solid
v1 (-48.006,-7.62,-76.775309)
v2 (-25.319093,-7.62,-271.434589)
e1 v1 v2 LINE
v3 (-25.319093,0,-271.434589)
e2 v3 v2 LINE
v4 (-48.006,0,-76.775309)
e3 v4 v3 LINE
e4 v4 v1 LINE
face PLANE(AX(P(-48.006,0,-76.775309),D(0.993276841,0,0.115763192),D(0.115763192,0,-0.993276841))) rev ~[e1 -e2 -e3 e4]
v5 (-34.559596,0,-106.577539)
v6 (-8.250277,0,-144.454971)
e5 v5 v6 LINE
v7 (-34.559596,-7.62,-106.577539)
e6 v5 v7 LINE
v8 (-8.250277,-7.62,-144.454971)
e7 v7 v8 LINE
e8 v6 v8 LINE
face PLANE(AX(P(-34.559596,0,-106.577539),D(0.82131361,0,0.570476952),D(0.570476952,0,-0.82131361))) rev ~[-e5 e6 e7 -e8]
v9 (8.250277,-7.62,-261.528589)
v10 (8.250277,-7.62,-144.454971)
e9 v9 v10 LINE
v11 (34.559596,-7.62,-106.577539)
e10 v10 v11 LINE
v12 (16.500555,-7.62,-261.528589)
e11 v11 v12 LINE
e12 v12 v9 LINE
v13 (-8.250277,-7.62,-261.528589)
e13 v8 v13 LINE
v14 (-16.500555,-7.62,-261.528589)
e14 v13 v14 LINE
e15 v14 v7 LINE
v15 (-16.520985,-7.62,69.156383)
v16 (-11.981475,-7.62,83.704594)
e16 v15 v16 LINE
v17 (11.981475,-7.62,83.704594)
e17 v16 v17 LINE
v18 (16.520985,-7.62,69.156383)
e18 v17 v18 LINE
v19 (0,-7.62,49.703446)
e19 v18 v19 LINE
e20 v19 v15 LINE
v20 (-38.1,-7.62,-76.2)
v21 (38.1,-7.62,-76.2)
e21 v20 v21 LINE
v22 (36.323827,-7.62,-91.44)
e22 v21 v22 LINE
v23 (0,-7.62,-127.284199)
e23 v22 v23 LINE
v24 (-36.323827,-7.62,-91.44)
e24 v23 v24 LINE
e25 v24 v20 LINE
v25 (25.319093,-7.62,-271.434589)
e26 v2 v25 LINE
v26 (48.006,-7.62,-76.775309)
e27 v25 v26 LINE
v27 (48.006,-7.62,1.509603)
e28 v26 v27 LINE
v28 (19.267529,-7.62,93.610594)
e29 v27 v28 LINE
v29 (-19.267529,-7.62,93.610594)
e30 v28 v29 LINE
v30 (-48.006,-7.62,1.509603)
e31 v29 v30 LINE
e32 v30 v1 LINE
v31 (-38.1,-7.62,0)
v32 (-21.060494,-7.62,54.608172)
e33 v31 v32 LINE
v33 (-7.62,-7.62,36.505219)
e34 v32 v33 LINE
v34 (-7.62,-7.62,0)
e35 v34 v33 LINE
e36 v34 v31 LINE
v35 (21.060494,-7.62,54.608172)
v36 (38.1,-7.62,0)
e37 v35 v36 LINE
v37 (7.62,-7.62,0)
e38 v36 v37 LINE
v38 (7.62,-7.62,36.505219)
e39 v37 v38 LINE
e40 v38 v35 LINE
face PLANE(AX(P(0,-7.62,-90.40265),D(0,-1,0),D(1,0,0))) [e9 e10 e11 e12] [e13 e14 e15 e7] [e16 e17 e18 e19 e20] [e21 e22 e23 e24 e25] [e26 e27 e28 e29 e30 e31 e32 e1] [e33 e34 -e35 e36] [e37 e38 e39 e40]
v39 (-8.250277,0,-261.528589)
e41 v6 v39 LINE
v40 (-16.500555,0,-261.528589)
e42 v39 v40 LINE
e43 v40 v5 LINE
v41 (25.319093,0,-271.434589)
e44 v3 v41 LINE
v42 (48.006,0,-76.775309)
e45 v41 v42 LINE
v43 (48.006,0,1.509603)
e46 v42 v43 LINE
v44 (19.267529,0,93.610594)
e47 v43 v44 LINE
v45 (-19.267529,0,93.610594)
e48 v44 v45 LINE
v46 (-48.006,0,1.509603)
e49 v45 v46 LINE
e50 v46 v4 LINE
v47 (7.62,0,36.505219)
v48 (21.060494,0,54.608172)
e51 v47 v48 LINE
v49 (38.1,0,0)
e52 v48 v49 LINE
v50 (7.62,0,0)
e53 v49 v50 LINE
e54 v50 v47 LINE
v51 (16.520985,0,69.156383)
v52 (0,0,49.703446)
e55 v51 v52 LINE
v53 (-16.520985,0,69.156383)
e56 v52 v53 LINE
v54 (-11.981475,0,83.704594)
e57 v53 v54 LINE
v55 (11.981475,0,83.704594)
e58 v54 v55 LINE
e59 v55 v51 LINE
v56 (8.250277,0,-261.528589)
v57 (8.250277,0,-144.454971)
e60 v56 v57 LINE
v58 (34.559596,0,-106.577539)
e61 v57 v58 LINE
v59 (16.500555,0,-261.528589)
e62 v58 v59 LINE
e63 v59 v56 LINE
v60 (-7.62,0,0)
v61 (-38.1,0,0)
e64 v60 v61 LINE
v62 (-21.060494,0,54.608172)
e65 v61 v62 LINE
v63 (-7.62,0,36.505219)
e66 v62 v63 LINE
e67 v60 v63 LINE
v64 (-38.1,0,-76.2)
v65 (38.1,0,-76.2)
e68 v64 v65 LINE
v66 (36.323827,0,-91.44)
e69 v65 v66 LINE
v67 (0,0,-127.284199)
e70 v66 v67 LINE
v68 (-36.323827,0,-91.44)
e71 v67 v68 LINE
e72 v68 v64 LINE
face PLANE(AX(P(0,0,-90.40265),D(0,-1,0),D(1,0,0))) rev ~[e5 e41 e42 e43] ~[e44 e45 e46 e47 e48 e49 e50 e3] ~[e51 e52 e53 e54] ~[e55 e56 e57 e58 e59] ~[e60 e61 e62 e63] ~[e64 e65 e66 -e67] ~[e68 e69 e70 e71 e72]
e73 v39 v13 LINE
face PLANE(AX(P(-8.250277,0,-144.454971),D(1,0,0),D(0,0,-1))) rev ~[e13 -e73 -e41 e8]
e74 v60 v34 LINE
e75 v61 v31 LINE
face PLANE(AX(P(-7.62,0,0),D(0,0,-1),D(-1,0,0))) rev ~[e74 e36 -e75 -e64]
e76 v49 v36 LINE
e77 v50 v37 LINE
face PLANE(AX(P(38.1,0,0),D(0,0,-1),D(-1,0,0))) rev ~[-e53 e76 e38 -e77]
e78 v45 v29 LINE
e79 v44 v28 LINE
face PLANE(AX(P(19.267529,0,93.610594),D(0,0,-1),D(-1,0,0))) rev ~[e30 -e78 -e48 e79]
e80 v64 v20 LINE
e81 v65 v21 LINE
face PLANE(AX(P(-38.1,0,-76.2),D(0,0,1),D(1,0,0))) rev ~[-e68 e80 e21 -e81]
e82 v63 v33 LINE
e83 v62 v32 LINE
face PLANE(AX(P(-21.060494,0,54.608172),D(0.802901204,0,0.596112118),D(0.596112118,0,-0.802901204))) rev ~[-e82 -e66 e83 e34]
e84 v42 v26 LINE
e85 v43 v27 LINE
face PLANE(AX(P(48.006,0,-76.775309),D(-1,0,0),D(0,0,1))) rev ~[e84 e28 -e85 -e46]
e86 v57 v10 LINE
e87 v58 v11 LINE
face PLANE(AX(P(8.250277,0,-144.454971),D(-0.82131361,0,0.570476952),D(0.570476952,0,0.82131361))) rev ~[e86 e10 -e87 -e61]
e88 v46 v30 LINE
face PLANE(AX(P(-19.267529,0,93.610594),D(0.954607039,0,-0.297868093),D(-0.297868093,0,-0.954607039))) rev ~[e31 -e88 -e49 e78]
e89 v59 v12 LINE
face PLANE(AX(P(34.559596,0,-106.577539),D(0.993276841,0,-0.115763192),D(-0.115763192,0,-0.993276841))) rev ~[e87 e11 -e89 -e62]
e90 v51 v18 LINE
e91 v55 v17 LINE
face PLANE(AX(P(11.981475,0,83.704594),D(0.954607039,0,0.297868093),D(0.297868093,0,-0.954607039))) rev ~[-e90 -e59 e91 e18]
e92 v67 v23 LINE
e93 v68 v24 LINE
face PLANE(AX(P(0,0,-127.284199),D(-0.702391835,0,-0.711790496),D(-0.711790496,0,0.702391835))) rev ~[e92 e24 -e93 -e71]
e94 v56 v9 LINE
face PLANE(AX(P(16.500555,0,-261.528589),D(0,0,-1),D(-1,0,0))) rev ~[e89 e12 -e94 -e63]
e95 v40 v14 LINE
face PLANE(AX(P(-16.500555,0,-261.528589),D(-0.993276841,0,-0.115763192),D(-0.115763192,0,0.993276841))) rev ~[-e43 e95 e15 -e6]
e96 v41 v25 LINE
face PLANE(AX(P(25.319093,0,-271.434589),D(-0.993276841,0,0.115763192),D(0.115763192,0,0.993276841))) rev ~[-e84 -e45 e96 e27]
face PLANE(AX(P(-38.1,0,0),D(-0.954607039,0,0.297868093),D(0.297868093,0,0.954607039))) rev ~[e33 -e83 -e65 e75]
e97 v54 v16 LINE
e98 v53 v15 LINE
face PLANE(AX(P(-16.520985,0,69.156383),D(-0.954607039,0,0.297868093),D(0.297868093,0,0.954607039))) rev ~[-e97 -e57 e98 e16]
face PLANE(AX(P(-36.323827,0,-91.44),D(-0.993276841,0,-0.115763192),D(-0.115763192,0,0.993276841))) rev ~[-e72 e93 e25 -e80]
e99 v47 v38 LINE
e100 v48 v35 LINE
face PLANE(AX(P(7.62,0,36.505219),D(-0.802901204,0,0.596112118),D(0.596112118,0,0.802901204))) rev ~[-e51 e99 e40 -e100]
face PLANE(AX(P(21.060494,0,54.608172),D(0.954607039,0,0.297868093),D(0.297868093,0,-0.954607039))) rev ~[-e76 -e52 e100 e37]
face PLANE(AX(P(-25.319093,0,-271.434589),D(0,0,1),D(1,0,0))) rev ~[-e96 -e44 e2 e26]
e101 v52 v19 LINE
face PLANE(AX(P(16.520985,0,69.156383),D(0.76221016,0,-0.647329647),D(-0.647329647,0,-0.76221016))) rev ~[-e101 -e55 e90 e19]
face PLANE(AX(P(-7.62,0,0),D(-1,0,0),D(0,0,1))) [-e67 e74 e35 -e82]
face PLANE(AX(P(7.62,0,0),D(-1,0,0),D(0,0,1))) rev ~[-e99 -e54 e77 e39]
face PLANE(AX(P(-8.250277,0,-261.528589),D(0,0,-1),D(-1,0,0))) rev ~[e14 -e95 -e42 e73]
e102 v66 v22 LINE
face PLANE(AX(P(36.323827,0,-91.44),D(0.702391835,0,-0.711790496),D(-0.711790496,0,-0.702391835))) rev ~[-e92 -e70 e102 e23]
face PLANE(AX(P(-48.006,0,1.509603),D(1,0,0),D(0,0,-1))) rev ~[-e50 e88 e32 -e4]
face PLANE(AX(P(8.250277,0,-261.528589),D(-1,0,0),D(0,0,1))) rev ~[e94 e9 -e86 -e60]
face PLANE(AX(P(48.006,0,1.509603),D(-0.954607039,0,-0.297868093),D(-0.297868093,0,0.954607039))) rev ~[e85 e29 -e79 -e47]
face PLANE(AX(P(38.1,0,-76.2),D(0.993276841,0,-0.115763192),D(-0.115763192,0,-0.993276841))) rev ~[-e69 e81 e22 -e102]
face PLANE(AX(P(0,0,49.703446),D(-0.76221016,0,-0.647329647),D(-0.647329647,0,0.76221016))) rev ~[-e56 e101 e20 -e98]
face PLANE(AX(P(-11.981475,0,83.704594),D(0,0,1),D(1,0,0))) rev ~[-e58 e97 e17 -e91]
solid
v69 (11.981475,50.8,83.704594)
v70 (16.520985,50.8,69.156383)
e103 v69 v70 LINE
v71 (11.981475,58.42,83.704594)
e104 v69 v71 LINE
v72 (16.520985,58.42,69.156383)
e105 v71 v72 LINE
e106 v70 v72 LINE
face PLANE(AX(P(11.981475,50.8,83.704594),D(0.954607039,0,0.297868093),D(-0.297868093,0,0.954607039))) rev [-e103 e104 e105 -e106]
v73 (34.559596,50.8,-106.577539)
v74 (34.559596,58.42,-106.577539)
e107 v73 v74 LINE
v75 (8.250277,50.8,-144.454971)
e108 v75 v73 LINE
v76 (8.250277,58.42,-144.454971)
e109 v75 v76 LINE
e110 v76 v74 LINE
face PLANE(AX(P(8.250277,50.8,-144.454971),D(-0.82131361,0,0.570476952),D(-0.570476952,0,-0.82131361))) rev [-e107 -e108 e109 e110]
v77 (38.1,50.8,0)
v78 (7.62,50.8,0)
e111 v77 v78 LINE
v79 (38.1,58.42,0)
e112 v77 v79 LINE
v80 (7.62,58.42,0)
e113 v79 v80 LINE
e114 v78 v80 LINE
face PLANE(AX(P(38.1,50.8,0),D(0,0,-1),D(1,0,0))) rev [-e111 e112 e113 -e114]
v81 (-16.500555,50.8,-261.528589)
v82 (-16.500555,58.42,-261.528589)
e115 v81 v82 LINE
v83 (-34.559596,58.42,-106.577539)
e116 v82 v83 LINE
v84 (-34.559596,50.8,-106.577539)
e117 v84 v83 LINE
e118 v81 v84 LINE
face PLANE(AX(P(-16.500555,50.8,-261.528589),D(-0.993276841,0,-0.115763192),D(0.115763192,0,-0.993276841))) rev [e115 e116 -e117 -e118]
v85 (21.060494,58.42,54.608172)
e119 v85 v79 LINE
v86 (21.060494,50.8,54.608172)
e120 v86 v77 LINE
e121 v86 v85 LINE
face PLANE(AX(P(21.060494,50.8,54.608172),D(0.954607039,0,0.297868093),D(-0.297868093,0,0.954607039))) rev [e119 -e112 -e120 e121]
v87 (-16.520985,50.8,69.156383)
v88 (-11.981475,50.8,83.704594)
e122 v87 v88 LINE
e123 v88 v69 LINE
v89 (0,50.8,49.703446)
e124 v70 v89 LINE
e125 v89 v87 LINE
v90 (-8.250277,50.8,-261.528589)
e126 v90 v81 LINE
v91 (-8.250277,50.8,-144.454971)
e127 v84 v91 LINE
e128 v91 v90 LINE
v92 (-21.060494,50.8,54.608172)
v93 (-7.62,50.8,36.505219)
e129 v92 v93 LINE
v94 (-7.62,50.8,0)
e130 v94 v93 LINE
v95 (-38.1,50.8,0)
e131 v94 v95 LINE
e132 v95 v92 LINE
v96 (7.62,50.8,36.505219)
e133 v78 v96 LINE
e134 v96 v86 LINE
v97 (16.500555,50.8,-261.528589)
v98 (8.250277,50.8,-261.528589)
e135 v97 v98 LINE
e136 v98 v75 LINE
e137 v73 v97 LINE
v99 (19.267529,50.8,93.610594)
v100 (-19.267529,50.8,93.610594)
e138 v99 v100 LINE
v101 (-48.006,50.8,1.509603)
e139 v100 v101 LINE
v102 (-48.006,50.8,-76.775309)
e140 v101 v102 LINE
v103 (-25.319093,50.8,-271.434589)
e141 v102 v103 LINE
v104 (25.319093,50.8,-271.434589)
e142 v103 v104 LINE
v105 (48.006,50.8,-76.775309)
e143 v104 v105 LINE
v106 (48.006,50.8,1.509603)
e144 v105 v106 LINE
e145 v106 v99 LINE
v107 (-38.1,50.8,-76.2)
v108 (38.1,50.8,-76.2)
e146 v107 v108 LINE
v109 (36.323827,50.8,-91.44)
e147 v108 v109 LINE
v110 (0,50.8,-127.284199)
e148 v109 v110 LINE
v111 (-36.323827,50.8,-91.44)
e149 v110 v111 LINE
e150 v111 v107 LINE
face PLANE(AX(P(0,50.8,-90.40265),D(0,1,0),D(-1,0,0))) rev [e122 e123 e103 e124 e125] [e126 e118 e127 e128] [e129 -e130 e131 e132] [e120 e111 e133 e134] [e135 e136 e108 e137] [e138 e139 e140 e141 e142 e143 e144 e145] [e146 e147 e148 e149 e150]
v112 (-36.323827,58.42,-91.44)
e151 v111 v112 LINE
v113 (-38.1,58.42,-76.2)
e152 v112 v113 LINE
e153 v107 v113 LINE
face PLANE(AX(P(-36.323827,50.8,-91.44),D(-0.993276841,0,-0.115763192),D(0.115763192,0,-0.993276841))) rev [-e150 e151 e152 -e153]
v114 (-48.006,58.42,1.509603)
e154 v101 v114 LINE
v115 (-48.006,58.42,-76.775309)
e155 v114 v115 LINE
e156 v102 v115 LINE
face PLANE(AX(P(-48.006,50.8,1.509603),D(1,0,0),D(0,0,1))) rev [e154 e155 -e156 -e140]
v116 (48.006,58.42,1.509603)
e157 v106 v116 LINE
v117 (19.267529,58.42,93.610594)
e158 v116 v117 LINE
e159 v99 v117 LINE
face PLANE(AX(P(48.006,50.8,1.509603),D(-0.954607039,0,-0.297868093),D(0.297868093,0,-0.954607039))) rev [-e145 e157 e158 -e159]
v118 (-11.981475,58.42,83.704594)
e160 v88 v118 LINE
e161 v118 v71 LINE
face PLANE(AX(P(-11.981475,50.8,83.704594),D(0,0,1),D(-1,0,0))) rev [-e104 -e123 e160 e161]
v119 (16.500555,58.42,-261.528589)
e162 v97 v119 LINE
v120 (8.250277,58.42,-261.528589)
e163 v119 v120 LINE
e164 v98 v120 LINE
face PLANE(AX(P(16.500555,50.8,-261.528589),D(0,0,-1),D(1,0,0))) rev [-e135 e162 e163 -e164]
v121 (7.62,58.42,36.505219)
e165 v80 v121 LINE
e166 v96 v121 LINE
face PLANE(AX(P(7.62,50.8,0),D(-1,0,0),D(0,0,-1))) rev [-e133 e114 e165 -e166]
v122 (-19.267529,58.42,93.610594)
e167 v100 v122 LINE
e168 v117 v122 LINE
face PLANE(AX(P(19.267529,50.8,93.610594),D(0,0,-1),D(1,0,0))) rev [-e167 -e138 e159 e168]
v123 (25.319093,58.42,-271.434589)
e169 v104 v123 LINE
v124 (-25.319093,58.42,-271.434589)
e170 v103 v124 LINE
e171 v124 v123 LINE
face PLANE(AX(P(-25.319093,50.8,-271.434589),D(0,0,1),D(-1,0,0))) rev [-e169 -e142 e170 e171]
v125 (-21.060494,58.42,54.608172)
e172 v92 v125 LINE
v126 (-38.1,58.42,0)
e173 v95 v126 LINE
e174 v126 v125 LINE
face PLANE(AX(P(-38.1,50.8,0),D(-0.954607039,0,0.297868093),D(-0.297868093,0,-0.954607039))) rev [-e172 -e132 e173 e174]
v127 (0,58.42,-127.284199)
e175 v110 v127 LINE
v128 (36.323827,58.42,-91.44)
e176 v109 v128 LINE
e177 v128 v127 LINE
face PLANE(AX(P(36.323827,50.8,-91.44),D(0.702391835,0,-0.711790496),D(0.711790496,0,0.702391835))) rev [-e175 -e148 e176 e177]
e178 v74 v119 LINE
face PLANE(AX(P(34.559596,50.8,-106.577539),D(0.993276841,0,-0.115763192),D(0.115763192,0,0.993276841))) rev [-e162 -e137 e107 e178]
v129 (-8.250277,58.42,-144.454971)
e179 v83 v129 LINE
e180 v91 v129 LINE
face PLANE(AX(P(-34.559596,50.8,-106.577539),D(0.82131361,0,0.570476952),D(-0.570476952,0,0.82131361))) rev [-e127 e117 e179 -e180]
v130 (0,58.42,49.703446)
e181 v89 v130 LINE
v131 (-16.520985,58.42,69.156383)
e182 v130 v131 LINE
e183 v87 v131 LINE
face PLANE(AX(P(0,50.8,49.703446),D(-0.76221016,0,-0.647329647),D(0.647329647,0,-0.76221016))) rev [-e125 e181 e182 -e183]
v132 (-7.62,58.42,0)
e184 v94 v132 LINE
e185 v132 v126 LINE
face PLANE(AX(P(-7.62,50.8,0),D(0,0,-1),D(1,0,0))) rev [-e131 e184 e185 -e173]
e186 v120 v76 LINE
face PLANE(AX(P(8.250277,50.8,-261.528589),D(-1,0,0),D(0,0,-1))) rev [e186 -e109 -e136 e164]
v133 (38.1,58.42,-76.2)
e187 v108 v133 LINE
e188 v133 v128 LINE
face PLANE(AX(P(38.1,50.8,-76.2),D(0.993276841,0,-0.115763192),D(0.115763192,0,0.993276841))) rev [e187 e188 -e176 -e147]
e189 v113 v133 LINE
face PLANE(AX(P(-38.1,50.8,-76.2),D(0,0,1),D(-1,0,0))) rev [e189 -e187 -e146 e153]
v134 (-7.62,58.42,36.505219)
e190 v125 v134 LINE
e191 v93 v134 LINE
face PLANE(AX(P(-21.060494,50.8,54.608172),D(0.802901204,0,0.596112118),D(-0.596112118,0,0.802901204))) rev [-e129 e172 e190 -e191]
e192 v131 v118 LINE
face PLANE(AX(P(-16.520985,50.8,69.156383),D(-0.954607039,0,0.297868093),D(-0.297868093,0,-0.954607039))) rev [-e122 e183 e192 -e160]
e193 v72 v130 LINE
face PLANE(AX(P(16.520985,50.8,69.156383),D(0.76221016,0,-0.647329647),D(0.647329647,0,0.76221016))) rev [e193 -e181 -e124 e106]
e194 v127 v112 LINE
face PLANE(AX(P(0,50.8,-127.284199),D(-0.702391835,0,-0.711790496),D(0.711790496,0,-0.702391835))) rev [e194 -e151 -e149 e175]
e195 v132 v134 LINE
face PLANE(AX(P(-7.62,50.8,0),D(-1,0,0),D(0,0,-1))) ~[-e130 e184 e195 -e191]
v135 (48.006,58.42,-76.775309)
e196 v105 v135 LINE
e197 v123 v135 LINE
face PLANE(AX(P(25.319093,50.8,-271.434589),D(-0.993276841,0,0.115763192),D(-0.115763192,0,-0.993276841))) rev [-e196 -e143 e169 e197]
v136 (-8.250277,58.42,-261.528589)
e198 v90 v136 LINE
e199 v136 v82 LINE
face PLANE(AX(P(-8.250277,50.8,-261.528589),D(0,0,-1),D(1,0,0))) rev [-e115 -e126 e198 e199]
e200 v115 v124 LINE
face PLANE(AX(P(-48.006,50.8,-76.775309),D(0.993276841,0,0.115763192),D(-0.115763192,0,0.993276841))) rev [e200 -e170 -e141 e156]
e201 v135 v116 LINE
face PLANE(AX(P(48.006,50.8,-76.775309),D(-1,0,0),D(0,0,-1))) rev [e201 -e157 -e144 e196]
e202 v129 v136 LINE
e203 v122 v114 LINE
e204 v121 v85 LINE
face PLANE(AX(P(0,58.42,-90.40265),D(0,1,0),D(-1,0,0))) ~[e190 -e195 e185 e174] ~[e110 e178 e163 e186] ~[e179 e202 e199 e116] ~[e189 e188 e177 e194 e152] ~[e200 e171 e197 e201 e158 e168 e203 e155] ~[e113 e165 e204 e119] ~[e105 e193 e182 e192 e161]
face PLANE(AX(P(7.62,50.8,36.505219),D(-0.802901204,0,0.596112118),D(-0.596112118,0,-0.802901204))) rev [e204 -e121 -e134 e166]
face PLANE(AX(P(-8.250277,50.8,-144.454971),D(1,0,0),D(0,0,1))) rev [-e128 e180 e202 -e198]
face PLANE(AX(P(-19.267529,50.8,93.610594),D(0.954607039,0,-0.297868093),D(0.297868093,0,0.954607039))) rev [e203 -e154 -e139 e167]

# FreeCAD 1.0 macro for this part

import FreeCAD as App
import Part
import Sketcher
Q = App.Units.Quantity


def add_polygon(sketch, points):
    """Adds a closed chain of lines whose ends are joined by coincident constraints."""
    first, n = sketch.GeometryCount, len(points)
    for a, b in zip(points, points[1:] + points[:1]):
        sketch.addGeometry(Part.LineSegment(App.Vector(*a, 0), App.Vector(*b, 0)), False)
    for i in range(n):
        sketch.addConstraint(Sketcher.Constraint("Coincident", first + i, 2, first + (i + 1) % n, 1))

doc = App.newDocument("Part")
body = doc.addObject("PartDesign::Body", "Body")

# Sketch on XZ plane
sketch1 = doc.addObject("Sketcher::SketchObject", "Sketch")
body.addObject(sketch1)
sketch1.AttachmentSupport = (doc.XZ_Plane, [""])
sketch1.MapMode = "FlatFace"
add_polygon(sketch1, [(-19, 94), (-48, 2), (-48, -77), (-25, -271), (25, -271), (48, -77), (48, 2), (19, 94)])  # lines 0-7
add_polygon(sketch1, [(-35, -107), (-8, -144), (-8, -262), (-17, -262)])  # lines 8-11
add_polygon(sketch1, [(8, -262), (8, -144), (35, -107), (17, -262)])  # lines 12-15
add_polygon(sketch1, [(36, -91), (0, -127), (-36, -91), (-38, -76), (38, -76)])  # lines 16-20
add_polygon(sketch1, [(-21, 55), (-8, 37), (-8, 0), (-38, 0)])  # lines 21-24
add_polygon(sketch1, [(17, 69), (0, 50), (-17, 69), (-12, 84), (12, 84)])  # lines 25-29
add_polygon(sketch1, [(8, 0), (8, 37), (21, 55), (38, 0)])  # lines 30-33
sketch1.addConstraint([
    Sketcher.Constraint("Vertical", 1),
    Sketcher.Constraint("Horizontal", 3),
    Sketcher.Constraint("Vertical", 5),
    Sketcher.Constraint("Horizontal", 7),
    Sketcher.Constraint("Vertical", 9),
    Sketcher.Constraint("Horizontal", 10),
    Sketcher.Constraint("Vertical", 12),
    Sketcher.Constraint("Horizontal", 15),
    Sketcher.Constraint("Horizontal", 19),
    Sketcher.Constraint("Vertical", 22),
    Sketcher.Constraint("Horizontal", 23),
    Sketcher.Constraint("Horizontal", 28),
    Sketcher.Constraint("Vertical", 30),
    Sketcher.Constraint("Horizontal", 33),
    Sketcher.Constraint("Symmetric", 23, 2, 32, 2, -1, 1),
    Sketcher.Constraint("Symmetric", 1, 2, 4, 2, -2),
    Sketcher.Constraint("Symmetric", 8, 2, 12, 2, -2),
    Sketcher.Constraint("Symmetric", 11, 2, 13, 2, -2),
    Sketcher.Constraint("Symmetric", 10, 2, 14, 2, -2),
    Sketcher.Constraint("Symmetric", 17, 2, 20, 2, -2),
    Sketcher.Constraint("Symmetric", 26, 2, 29, 2, -2),
    Sketcher.Constraint("Symmetric", 21, 2, 30, 2, -2),
    Sketcher.Constraint("Symmetric", 24, 2, 31, 2, -2),
    Sketcher.Constraint("PointOnObject", 16, 2, -2),
    Sketcher.Constraint("PointOnObject", 22, 2, -1),
    Sketcher.Constraint("PointOnObject", 25, 2, -2),
    Sketcher.Constraint("Parallel", 2, 11),
    Sketcher.Constraint("Parallel", 4, 14),
    Sketcher.Constraint("Parallel", 11, 18),
    Sketcher.Constraint("Parallel", 14, 20),
    Sketcher.Constraint("Parallel", 0, 24),
    Sketcher.Constraint("Parallel", 24, 27),
    Sketcher.Constraint("Parallel", 6, 29),
    Sketcher.Constraint("Parallel", 29, 32),
    Sketcher.Constraint("Horizontal", 0, 2, 5, 2),
    Sketcher.Constraint("Vertical", 18, 2, 23, 2),
    Sketcher.Constraint("DistanceX", 19, 1, 19, 2, Q("3 in")),
    Sketcher.Constraint("DistanceX", 23, 2, 23, 1, Q("1.2 in")),
    Sketcher.Constraint("DistanceY", 18, 2, -1, 1, Q("3 in")),
    Sketcher.Constraint("Distance", 27, Q("0.6 in")),
    Sketcher.Constraint("DistanceY", 17, 2, -1, 1, Q("3.6 in")),
    Sketcher.Constraint("DistanceX", 0, 2, -1, 1, Q("1.89 in")),
    Sketcher.Constraint("DistanceY", 2, 2, 9, 2, Q("0.39 in")),
    Sketcher.Constraint("DistanceY", 27, 2, 7, 2, Q("0.39 in")),
    Sketcher.Constraint("DistanceX", 11, 2, 8, 2, Q("1.0358 in")),
    Sketcher.Constraint("DistanceX", 7, 2, 7, 1, 38.535059),
    Sketcher.Constraint("DistanceX", 28, 1, 28, 2, 23.96295),
    Sketcher.Constraint("DistanceY", 22, 2, 22, 1, 36.505219),
    Sketcher.Constraint("DistanceY", 16, 2, -1, 1, 127.284199),
    Sketcher.Constraint("Distance", 8, 46.118111),
    Sketcher.Constraint("Distance", 11, 155.999862),
    Sketcher.Constraint("Distance", 24, 57.20487),
    Sketcher.Constraint("Distance", 25, 25.521749),
    Sketcher.Constraint("DistanceX", 3, 1, 3, 2, 50.638186),
    Sketcher.Constraint("DistanceX", 10, 2, 10, 1, 8.250277),
    Sketcher.Constraint("DistanceY", 1, 2, 1, 1, 78.284912),
    Sketcher.Constraint("DistanceY", 1, 2, -1, 1, 76.775309),
    Sketcher.Constraint("DistanceY", -1, 1, 24, 2, 54.608172),
    Sketcher.Constraint("DistanceX", 8, 2, 3, 2, 33.56937),
])
pad1 = doc.addObject("PartDesign::Pad", "Pad")
body.addObject(pad1)
pad1.Profile = sketch1
pad1.Length = Q("0.3 in")
body2 = doc.addObject("PartDesign::Body", "Body001")
doc.recompute()

mirroring = doc.addObject("Part::Mirroring", "Mirroring")
mirroring.Source = body
mirroring.Base = App.Vector(0, 25.4, 0)
mirroring.Normal = App.Vector(0, -1, 0)
body2.BaseFeature = mirroring
doc.recompute()
mirroring.Visibility = False

doc.recompute()
